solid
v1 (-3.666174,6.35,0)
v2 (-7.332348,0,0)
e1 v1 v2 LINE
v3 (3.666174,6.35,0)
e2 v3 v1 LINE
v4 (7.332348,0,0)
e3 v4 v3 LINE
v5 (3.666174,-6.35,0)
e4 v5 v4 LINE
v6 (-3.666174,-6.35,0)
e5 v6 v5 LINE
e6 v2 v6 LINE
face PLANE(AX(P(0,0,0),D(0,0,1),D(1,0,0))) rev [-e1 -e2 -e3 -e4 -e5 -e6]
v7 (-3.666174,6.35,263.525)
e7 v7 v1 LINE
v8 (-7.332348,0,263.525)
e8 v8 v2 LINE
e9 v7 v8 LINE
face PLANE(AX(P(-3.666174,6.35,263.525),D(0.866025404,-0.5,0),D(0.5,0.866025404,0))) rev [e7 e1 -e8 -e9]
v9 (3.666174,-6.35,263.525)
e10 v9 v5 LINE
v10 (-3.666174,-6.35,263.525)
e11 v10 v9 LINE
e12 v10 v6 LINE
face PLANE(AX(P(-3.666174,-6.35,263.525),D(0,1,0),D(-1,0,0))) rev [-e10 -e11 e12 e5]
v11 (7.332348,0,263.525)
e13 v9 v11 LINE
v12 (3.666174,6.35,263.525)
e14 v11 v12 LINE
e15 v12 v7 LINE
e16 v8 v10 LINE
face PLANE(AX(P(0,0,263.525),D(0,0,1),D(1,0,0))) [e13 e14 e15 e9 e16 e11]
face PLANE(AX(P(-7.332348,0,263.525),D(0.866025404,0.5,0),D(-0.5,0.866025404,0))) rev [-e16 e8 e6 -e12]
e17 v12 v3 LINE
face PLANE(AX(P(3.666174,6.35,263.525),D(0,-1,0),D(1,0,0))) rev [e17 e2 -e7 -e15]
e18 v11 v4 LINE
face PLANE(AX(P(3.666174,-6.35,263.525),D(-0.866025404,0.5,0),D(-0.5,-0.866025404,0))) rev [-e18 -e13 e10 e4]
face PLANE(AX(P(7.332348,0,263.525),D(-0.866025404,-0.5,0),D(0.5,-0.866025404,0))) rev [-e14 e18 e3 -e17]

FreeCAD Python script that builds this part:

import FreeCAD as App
import Part
import Sketcher

V = App.Vector
Q = App.Units.Quantity


def add_polygon(sketch, points):
    """Adds a closed chain of lines whose ends are joined by coincident constraints."""
    first, n = sketch.GeometryCount, len(points)
    for a, b in zip(points, points[1:] + points[:1]):
        sketch.addGeometry(Part.LineSegment(App.Vector(*a, 0), App.Vector(*b, 0)), False)
    for i in range(n):
        sketch.addConstraint(Sketcher.Constraint("Coincident", first + i, 2, first + (i + 1) % n, 1))

doc = App.newDocument("Part")
params = doc.addObject("Spreadsheet::Sheet", "Params")
for row, (alias, value) in enumerate([
    ("pad1_length", "10.375 in"),
], start=1):
    params.set(f"A{row}", alias)
    params.set(f"B{row}", "=" + value)
    params.setAlias(f"B{row}", alias)

body = doc.addObject("PartDesign::Body", "Body")

sketch1 = body.newObject("Sketcher::SketchObject", "Sketch")
sketch1.AttachmentSupport = (doc.getObject("XY_Plane"), [""])
sketch1.MapMode = "FlatFace"
add_polygon(sketch1, [(7, 0), (4, 6), (-4, 6), (-7, 0), (-4, -6), (4, -6)])
sketch1.addConstraint([
    Sketcher.Constraint("Horizontal", 1),
    Sketcher.Constraint("Horizontal", 4),
    Sketcher.Constraint("Symmetric", 0, 2, 3, 2, -1, 1),
    Sketcher.Constraint("Symmetric", 2, 2, 5, 2, -1, 1),
    Sketcher.Constraint("PointOnObject", 2, 2, -1),
    Sketcher.Constraint("Parallel", 2, 5),
    Sketcher.Constraint("Vertical", 1, 2, 3, 2),
    Sketcher.Constraint("Angle", 0, Q("120 deg")),
    Sketcher.Constraint("DistanceY", 3, 2, 1, 2, Q("0.5 in")),
    Sketcher.Constraint("DistanceX", 1, 2, 1, 1, Q("7.332348 mm")),
])
pad1 = body.newObject("PartDesign::Pad", "Pad")
pad1.Profile = sketch1
pad1.setExpression("Length", "Params.pad1_length")

doc.recompute()
